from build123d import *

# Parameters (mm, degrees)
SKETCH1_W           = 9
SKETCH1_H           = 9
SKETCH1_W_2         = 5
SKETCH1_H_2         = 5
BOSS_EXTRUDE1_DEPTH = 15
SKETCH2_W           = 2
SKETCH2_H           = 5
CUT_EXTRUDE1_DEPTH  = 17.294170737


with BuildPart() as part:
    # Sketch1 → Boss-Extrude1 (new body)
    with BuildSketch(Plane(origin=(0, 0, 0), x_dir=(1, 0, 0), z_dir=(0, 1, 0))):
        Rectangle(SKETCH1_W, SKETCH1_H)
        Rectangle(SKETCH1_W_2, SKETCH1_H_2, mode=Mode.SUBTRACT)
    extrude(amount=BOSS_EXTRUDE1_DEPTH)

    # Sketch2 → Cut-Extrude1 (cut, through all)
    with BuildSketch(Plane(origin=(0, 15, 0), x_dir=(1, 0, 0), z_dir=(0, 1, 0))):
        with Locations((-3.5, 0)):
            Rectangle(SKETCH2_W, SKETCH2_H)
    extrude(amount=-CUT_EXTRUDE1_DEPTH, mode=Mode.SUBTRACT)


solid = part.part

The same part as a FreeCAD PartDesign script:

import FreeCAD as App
import Part
import Sketcher
from FreeCAD import Vector
Q = App.Units.Quantity

doc = App.newDocument("Part")
body = doc.addObject("PartDesign::Body", "Body")

# Sketch on XZ plane
sketch1 = doc.addObject("Sketcher::SketchObject", "Sketch")
body.addObject(sketch1)
sketch1.AttachmentSupport = (doc.XZ_Plane, [""])
sketch1.MapMode = "FlatFace"
sketch1.addGeometry([
    Part.LineSegment(Vector(-4.5, -4.5, 0), Vector(-4.5, 4.5, 0)),  # 0
    Part.LineSegment(Vector(-4.5, 4.5, 0), Vector(4.5, 4.5, 0)),  # 1
    Part.LineSegment(Vector(4.5, 4.5, 0), Vector(4.5, -4.5, 0)),  # 2
    Part.LineSegment(Vector(4.5, -4.5, 0), Vector(-4.5, -4.5, 0)),  # 3
    Part.LineSegment(Vector(2.5, 2.5, 0), Vector(-2.5, 2.5, 0)),  # 4
    Part.LineSegment(Vector(-2.5, 2.5, 0), Vector(-2.5, -2.5, 0)),  # 5
    Part.LineSegment(Vector(-2.5, -2.5, 0), Vector(2.5, -2.5, 0)),  # 6
    Part.LineSegment(Vector(2.5, -2.5, 0), Vector(2.5, 2.5, 0)),  # 7
], False)
sketch1.addConstraint([
    Sketcher.Constraint("Coincident", 0, 2, 1, 1),
    Sketcher.Constraint("Coincident", 1, 2, 2, 1),
    Sketcher.Constraint("Coincident", 2, 2, 3, 1),
    Sketcher.Constraint("Coincident", 3, 2, 0, 1),
    Sketcher.Constraint("Coincident", 4, 2, 5, 1),
    Sketcher.Constraint("Coincident", 5, 2, 6, 1),
    Sketcher.Constraint("Coincident", 6, 2, 7, 1),
    Sketcher.Constraint("Coincident", 7, 2, 4, 1),
    Sketcher.Constraint("Vertical", 0),
    Sketcher.Constraint("Horizontal", 1),
    Sketcher.Constraint("Vertical", 2),
    Sketcher.Constraint("Horizontal", 3),
    Sketcher.Constraint("Horizontal", 4),
    Sketcher.Constraint("Vertical", 5),
    Sketcher.Constraint("Horizontal", 6),
    Sketcher.Constraint("Vertical", 7),
    Sketcher.Constraint("Symmetric", 0, 2, 2, 2, -1, 1),
    Sketcher.Constraint("Symmetric", 4, 2, 6, 2, -1, 1),
    Sketcher.Constraint("Equal", 3, 0),
    Sketcher.Constraint("Equal", 6, 5),
    Sketcher.Constraint("DistanceX", 1, 1, 1, 2, Q("9 mm")),
    Sketcher.Constraint("DistanceX", 4, 2, 4, 1, Q("5 mm")),
])
pad1 = doc.addObject("PartDesign::Pad", "Pad")
body.addObject(pad1)
pad1.Profile = sketch1
pad1.Length = 15
pad1.Reversed = True

# Sketch on XZ plane
sketch2 = doc.addObject("Sketcher::SketchObject", "Sketch001")
body.addObject(sketch2)
sketch2.AttachmentSupport = (doc.XZ_Plane, [""])
sketch2.MapMode = "FlatFace"
sketch2.AttachmentOffset = App.Placement(Vector(0, 0, -15), App.Rotation())
sketch2.addGeometry([
    Part.LineSegment(Vector(-4.5, -2.5, 0), Vector(-4.5, 2.5, 0)),
    Part.LineSegment(Vector(-4.5, 2.5, 0), Vector(-2.5, 2.5, 0)),
    Part.LineSegment(Vector(-2.5, 2.5, 0), Vector(-2.5, -2.5, 0)),
    Part.LineSegment(Vector(-2.5, -2.5, 0), Vector(-4.5, -2.5, 0)),
], False)
sketch2.addConstraint([
    Sketcher.Constraint("Coincident", 0, 2, 1, 1),
    Sketcher.Constraint("Coincident", 1, 2, 2, 1),
    Sketcher.Constraint("Coincident", 2, 2, 3, 1),
    Sketcher.Constraint("Coincident", 3, 2, 0, 1),
    Sketcher.Constraint("Vertical", 0),
    Sketcher.Constraint("Horizontal", 1),
    Sketcher.Constraint("Vertical", 2),
    Sketcher.Constraint("Horizontal", 3),
    Sketcher.Constraint("DistanceX", 1, 1, 1, 2, Q("2 mm")),
    Sketcher.Constraint("DistanceY", 0, 1, 0, 2, Q("5 mm")),
    Sketcher.Constraint("DistanceX", 0, 2, -1, 1, Q("4.5 mm")),
    Sketcher.Constraint("DistanceY", -1, 1, 0, 2, Q("2.5 mm")),
])
pocket1 = doc.addObject("PartDesign::Pocket", "Pocket")
body.addObject(pocket1)
pocket1.Profile = sketch2
pocket1.Type = "ThroughAll"
pocket1.Reversed = True

doc.recompute()
